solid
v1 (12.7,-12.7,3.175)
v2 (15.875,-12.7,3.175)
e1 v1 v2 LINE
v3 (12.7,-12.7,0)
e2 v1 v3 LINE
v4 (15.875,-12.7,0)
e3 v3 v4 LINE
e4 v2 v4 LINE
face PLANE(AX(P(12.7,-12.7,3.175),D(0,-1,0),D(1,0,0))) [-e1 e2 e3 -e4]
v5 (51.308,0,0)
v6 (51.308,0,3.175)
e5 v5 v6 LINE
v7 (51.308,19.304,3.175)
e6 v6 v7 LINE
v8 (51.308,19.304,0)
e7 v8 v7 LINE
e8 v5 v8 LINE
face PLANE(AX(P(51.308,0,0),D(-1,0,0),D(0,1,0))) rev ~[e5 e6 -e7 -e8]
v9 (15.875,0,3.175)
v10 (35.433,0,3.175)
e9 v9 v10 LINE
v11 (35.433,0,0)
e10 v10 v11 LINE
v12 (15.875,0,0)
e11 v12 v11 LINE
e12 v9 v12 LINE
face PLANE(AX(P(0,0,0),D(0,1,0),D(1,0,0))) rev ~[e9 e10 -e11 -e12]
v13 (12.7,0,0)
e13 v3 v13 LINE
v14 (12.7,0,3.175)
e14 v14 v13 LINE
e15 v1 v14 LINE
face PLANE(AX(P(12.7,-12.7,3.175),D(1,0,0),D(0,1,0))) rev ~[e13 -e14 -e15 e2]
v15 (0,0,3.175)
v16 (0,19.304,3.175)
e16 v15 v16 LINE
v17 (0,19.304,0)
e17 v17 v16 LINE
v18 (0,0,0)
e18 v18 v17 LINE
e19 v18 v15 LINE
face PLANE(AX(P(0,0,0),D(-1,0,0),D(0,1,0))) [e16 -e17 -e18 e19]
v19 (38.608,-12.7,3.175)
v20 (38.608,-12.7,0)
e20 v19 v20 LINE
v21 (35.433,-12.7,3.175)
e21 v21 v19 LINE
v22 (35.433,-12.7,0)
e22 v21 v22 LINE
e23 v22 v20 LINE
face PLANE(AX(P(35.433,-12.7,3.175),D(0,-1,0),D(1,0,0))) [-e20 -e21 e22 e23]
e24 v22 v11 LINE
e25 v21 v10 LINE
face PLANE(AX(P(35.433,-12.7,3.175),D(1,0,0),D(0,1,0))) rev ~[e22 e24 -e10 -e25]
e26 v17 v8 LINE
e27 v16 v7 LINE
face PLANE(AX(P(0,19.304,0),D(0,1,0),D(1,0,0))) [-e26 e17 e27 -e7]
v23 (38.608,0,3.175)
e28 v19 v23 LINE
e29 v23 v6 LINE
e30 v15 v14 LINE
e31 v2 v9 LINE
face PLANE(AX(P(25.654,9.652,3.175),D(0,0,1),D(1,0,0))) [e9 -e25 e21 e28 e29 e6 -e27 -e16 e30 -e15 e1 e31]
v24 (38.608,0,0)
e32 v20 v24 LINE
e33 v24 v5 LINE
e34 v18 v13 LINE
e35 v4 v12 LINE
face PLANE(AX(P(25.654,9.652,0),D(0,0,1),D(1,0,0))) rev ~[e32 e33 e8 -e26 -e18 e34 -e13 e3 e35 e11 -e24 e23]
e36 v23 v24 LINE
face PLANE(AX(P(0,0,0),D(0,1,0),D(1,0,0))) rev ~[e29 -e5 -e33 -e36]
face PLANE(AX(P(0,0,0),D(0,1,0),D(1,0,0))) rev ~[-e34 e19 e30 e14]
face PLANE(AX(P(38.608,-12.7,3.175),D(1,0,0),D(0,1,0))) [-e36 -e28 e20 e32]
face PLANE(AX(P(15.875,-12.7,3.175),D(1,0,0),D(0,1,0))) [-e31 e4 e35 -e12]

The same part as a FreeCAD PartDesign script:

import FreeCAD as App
import Part
import Sketcher
Q = App.Units.Quantity


def add_polygon(sketch, points):
    """Adds a closed chain of lines whose ends are joined by coincident constraints."""
    first, n = sketch.GeometryCount, len(points)
    for a, b in zip(points, points[1:] + points[:1]):
        sketch.addGeometry(Part.LineSegment(App.Vector(*a, 0), App.Vector(*b, 0)), False)
    for i in range(n):
        sketch.addConstraint(Sketcher.Constraint("Coincident", first + i, 2, first + (i + 1) % n, 1))

doc = App.newDocument("Part")
body = doc.addObject("PartDesign::Body", "Body")

# Sketch on XY plane
sketch1 = body.newObject("Sketcher::SketchObject", "Sketch")
sketch1.AttachmentSupport = (doc.getObject("XY_Plane"), [""])
sketch1.MapMode = "FlatFace"
add_polygon(sketch1, [(0, 19), (0, 0), (51, 0), (51, 19)])  # lines 0-3
sketch1.addConstraint([
    Sketcher.Constraint("Vertical", 0),
    Sketcher.Constraint("Horizontal", 1),
    Sketcher.Constraint("Vertical", 2),
    Sketcher.Constraint("Horizontal", 3),
    Sketcher.Constraint("Coincident", 0, 2, -1, 1),
    Sketcher.Constraint("DistanceX", 1, 1, 1, 2, Q("2.02 in")),
    Sketcher.Constraint("DistanceY", 0, 2, 0, 1, Q("0.76 in")),
])
pad1 = body.newObject("PartDesign::Pad", "Pad")
pad1.Profile = sketch1
pad1.Length = Q("0.125 in")

# Sketch on XY plane
sketch2 = body.newObject("Sketcher::SketchObject", "Sketch001")
sketch2.AttachmentSupport = (doc.getObject("XY_Plane"), [""])
sketch2.MapMode = "FlatFace"
sketch2.AttachmentOffset = App.Placement(App.Vector(0, 0, 0.125 * 25.4), App.Rotation())
add_polygon(sketch2, [(35.4, 0), (35.4, -12.7), (38.6, -12.7), (38.6, 0)])  # lines 0-3
add_polygon(sketch2, [(12.7, 0), (12.7, -12.7), (15.9, -12.7), (15.9, 0)])  # lines 4-7
sketch2.addConstraint([
    Sketcher.Constraint("Vertical", 0),
    Sketcher.Constraint("Horizontal", 1),
    Sketcher.Constraint("Vertical", 2),
    Sketcher.Constraint("Horizontal", 3),
    Sketcher.Constraint("Vertical", 4),
    Sketcher.Constraint("Horizontal", 5),
    Sketcher.Constraint("Vertical", 6),
    Sketcher.Constraint("Horizontal", 7),
    Sketcher.Constraint("PointOnObject", 2, 2, -1),
    Sketcher.Constraint("PointOnObject", 6, 2, -1),
    Sketcher.Constraint("Horizontal", 1, 2, 4, 2),
    Sketcher.Constraint("Equal", 3, 5),
    Sketcher.Constraint("DistanceY", 0, 2, 0, 1, Q("0.5 in")),
    Sketcher.Constraint("DistanceX", -1, 1, 4, 2, Q("0.5 in")),
    Sketcher.Constraint("DistanceX", 1, 1, 1, 2, Q("0.125 in")),
    Sketcher.Constraint("DistanceX", -1, 1, 1, 2, Q("1.52 in")),
])
pad2 = body.newObject("PartDesign::Pad", "Pad001")
pad2.Profile = sketch2
pad2.Length = Q("0.125 in")
pad2.Reversed = True

doc.recompute()
